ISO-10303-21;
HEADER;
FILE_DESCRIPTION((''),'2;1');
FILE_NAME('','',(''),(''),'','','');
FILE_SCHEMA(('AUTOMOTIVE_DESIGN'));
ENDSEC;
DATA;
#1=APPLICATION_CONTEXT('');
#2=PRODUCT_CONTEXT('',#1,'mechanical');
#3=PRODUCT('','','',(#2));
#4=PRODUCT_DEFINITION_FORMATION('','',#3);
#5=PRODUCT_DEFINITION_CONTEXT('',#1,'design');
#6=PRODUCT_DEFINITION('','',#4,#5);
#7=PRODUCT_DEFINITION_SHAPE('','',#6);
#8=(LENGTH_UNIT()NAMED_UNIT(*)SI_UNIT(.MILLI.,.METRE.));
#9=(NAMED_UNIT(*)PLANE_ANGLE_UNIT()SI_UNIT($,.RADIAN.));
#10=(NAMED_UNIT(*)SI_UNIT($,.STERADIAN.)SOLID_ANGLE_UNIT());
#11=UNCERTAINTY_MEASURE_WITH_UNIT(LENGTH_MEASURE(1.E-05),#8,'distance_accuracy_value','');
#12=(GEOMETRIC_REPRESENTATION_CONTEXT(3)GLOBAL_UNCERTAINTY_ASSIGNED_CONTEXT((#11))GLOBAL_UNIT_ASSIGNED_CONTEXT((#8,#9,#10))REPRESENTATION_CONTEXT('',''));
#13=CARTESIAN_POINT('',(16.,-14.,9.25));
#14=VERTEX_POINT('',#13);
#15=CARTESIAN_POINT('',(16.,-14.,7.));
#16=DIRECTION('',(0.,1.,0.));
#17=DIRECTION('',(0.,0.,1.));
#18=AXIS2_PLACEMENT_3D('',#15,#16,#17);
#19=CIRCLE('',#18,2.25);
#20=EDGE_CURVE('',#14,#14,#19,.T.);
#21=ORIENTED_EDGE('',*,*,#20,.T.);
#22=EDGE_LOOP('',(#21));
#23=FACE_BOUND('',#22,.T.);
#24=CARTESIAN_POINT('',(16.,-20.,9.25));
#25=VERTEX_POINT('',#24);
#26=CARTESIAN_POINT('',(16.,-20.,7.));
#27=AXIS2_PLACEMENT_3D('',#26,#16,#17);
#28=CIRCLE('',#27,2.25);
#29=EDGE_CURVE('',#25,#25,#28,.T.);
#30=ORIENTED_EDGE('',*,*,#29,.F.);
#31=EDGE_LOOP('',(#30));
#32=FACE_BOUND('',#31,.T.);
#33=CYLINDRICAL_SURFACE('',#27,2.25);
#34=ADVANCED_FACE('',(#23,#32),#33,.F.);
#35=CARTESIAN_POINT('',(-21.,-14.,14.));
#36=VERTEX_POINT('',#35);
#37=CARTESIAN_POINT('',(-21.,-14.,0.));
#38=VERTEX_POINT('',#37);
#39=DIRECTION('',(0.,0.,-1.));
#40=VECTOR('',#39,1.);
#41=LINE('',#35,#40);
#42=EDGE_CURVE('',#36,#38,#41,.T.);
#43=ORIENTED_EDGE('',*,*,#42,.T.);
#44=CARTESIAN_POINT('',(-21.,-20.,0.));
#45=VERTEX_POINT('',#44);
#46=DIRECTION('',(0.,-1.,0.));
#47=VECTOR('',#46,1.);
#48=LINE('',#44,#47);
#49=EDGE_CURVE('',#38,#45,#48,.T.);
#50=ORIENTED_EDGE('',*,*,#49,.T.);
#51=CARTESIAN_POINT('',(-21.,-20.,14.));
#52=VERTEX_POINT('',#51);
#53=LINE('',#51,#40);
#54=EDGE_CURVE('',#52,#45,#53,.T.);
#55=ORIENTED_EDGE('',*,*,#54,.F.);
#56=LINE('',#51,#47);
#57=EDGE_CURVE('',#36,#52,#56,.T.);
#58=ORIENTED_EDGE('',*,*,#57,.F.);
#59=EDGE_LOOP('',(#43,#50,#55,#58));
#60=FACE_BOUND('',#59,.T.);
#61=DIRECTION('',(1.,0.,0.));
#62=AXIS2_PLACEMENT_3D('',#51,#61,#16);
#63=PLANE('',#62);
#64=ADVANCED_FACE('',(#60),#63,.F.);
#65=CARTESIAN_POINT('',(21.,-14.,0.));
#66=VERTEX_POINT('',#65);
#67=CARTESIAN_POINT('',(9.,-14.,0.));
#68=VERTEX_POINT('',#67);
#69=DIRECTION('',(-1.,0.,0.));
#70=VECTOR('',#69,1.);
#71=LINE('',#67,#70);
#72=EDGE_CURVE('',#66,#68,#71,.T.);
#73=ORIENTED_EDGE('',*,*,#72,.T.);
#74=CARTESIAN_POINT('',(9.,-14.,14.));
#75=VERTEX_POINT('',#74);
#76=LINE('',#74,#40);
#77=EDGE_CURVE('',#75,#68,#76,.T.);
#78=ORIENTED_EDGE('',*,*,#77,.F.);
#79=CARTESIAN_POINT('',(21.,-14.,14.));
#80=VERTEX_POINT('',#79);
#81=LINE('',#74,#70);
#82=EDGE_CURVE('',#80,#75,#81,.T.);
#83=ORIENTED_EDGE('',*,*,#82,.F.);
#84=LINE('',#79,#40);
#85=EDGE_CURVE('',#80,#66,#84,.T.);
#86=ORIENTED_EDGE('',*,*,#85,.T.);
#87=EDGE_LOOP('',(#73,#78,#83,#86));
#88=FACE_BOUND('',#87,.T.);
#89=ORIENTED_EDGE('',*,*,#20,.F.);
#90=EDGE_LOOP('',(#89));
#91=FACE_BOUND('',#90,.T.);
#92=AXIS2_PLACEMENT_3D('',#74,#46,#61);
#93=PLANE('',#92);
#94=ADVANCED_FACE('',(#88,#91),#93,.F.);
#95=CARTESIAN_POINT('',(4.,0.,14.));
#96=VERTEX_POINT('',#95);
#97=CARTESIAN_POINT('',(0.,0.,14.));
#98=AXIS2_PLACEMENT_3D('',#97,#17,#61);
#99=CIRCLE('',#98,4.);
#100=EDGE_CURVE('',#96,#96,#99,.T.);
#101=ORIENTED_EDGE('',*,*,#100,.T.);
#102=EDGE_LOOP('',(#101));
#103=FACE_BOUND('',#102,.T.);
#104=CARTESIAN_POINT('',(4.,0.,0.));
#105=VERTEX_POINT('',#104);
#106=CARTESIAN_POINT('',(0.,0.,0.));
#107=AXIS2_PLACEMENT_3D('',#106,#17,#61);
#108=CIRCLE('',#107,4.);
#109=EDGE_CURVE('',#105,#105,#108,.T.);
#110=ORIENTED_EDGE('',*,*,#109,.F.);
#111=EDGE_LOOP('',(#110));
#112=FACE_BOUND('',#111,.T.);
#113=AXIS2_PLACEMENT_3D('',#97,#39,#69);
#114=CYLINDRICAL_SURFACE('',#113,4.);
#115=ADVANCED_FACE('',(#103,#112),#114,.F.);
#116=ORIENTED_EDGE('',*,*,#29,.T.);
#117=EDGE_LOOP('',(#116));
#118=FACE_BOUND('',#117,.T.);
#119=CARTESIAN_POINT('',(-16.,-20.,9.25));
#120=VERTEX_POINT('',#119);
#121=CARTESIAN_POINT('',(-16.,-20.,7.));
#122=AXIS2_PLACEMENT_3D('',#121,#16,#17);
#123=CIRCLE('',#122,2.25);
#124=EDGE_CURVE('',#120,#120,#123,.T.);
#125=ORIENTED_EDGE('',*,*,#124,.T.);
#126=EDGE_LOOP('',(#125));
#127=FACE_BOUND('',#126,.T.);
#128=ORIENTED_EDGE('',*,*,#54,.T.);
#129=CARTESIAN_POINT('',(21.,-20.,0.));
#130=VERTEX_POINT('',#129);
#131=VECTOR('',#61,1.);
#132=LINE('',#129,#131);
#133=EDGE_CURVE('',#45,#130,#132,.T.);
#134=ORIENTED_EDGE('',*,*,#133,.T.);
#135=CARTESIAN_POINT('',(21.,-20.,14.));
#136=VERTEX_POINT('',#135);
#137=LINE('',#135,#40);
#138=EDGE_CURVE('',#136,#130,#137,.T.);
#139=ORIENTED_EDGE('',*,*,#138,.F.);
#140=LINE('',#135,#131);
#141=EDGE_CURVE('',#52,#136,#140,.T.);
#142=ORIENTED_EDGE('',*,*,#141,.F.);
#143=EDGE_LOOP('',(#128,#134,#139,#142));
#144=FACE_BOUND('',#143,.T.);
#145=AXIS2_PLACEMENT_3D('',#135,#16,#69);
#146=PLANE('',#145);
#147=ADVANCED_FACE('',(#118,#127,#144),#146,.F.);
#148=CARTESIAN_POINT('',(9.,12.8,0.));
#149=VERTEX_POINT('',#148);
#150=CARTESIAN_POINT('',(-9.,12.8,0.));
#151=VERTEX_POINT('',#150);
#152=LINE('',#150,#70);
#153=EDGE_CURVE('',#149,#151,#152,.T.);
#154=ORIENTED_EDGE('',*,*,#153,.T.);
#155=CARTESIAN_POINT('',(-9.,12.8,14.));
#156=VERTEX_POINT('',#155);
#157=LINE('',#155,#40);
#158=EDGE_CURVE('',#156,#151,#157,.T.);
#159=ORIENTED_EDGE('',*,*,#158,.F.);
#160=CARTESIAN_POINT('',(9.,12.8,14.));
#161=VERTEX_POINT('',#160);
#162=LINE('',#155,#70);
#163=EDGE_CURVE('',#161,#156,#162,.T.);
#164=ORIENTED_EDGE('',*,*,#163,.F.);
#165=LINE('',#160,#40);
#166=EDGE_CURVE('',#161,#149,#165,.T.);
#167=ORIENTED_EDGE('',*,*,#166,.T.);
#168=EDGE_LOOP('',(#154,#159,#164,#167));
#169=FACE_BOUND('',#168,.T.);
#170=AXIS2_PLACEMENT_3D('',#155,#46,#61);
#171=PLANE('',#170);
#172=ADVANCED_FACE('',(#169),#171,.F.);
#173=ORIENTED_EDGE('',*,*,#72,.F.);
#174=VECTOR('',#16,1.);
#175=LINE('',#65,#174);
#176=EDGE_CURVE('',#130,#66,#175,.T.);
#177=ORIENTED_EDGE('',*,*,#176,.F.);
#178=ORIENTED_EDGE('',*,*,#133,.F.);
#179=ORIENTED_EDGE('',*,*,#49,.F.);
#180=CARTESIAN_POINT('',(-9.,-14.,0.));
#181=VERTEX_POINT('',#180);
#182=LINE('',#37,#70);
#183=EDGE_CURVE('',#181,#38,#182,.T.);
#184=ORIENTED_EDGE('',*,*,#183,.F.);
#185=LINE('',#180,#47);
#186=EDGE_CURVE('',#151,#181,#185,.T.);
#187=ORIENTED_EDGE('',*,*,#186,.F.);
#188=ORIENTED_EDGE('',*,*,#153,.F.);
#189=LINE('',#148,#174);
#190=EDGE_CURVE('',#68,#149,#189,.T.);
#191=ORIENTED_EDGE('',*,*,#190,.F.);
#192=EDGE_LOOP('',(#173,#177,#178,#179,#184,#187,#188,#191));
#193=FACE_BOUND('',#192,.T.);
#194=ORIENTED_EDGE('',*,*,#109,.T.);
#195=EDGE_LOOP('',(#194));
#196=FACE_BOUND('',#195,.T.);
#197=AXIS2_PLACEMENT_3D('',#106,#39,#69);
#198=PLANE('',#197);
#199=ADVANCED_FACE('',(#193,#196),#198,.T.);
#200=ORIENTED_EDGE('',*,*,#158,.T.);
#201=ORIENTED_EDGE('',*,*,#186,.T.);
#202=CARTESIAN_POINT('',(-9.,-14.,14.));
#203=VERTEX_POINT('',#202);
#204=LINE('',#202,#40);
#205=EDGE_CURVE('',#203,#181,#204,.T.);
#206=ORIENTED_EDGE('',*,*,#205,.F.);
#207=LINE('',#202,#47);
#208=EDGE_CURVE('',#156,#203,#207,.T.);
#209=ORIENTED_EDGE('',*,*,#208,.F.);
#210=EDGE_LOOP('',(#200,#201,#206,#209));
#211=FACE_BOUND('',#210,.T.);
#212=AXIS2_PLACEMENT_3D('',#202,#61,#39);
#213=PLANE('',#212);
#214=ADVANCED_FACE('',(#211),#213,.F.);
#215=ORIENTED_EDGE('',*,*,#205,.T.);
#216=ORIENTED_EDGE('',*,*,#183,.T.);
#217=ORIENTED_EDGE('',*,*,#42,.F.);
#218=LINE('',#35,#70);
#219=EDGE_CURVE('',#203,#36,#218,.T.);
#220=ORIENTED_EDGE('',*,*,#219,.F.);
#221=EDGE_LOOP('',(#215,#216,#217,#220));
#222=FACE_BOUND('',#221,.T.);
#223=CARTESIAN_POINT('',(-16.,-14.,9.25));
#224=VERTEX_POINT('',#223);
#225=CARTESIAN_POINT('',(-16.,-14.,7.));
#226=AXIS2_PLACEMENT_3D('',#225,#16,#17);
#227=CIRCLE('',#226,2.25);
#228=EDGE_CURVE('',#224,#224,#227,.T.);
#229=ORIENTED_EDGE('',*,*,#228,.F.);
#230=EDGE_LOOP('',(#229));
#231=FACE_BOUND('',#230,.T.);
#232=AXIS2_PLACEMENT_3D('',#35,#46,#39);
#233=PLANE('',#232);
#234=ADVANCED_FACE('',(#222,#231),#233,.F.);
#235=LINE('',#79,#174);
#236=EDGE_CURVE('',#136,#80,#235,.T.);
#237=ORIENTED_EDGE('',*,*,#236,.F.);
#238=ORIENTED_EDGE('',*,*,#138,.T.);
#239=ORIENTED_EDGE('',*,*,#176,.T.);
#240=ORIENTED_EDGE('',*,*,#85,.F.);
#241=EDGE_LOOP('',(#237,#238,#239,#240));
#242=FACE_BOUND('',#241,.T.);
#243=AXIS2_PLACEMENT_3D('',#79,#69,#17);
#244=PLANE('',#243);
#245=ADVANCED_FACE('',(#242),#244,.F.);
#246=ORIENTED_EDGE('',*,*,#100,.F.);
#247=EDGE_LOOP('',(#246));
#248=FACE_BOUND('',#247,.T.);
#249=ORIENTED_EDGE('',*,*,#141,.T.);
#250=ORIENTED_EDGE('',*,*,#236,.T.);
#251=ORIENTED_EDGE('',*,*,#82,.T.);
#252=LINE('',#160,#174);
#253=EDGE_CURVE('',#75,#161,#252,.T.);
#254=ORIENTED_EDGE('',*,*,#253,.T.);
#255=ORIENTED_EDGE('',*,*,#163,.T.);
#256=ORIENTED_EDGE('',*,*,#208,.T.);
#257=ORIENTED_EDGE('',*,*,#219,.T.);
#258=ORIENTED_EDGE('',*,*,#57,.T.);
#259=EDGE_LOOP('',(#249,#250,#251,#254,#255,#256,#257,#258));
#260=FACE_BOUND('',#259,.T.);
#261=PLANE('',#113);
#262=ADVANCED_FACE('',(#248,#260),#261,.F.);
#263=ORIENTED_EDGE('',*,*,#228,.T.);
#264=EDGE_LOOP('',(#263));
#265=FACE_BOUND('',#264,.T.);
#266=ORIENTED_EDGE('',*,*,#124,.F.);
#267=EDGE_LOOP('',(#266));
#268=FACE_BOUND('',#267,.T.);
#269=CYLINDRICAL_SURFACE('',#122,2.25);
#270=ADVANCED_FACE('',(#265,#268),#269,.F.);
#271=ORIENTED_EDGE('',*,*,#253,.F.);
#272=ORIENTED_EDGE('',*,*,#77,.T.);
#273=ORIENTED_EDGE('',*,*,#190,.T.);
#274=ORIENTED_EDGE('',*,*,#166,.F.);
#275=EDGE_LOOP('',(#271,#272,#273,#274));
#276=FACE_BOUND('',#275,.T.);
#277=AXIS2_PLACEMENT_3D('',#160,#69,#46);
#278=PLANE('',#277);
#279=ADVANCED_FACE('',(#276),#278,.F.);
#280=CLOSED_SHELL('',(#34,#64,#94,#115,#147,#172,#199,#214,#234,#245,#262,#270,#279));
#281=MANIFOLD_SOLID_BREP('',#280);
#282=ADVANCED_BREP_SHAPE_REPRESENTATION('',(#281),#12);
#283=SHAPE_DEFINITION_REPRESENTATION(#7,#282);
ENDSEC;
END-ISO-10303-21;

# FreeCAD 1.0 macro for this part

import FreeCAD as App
import Part
import Sketcher
Q = App.Units.Quantity

doc = App.newDocument("Part")
body = doc.addObject("PartDesign::Body", "Body")

sketch1 = doc.addObject("Sketcher::SketchObject", "Sketch")
body.addObject(sketch1)
sketch1.AttachmentSupport = (doc.XY_Plane, [""])
sketch1.MapMode = "FlatFace"
sketch1.addGeometry([
    Part.LineSegment(App.Vector(9, 12.8, 0), App.Vector(-9, 12.8, 0)),
    Part.LineSegment(App.Vector(-9, 12.8, 0), App.Vector(-9, -14, 0)),
    Part.LineSegment(App.Vector(-9, -14, 0), App.Vector(-21, -14, 0)),
    Part.LineSegment(App.Vector(-21, -14, 0), App.Vector(-21, -20, 0)),
    Part.LineSegment(App.Vector(-21, -20, 0), App.Vector(21, -20, 0)),
    Part.LineSegment(App.Vector(21, -20, 0), App.Vector(21, -14, 0)),
    Part.LineSegment(App.Vector(21, -14, 0), App.Vector(9, -14, 0)),
    Part.LineSegment(App.Vector(9, -14, 0), App.Vector(9, 12.8, 0)),
    Part.Circle(App.Vector(0, 0, 0), App.Vector(0, 0, 1), 4),
], False)
sketch1.addConstraint([
    Sketcher.Constraint("Coincident", 0, 2, 1, 1),
    Sketcher.Constraint("Coincident", 1, 2, 2, 1),
    Sketcher.Constraint("Coincident", 2, 2, 3, 1),
    Sketcher.Constraint("Coincident", 3, 2, 4, 1),
    Sketcher.Constraint("Coincident", 4, 2, 5, 1),
    Sketcher.Constraint("Coincident", 5, 2, 6, 1),
    Sketcher.Constraint("Coincident", 6, 2, 7, 1),
    Sketcher.Constraint("Coincident", 7, 2, 0, 1),
    Sketcher.Constraint("Horizontal", 0),
    Sketcher.Constraint("Vertical", 1),
    Sketcher.Constraint("Horizontal", 2),
    Sketcher.Constraint("Vertical", 3),
    Sketcher.Constraint("Horizontal", 4),
    Sketcher.Constraint("Vertical", 5),
    Sketcher.Constraint("Horizontal", 6),
    Sketcher.Constraint("Vertical", 7),
    Sketcher.Constraint("Coincident", 8, 3, -1, 1),
    Sketcher.Constraint("Symmetric", 2, 2, 5, 2, -2),
    Sketcher.Constraint("Equal", 2, 6),
    Sketcher.Constraint("Diameter", 8, Q("8 mm")),
    Sketcher.Constraint("DistanceX", 0, 2, 0, 1, Q("18 mm")),
    Sketcher.Constraint("DistanceX", 2, 2, 2, 1, Q("12 mm")),
    Sketcher.Constraint("DistanceY", 3, 2, 3, 1, Q("6 mm")),
    Sketcher.Constraint("DistanceY", 1, 2, 1, 1, Q("26.8 mm")),
    Sketcher.Constraint("DistanceY", 1, 2, -1, 1, Q("14 mm")),
])
pad1 = doc.addObject("PartDesign::Pad", "Pad")
body.addObject(pad1)
pad1.Profile = sketch1
pad1.Length = 14

sketch2 = doc.addObject("Sketcher::SketchObject", "Sketch001")
body.addObject(sketch2)
sketch2.AttachmentSupport = (doc.XZ_Plane, [""])
sketch2.MapMode = "FlatFace"
sketch2.AttachmentOffset = App.Placement(App.Vector(0, 0, 14), App.Rotation())
sketch2.addGeometry([
    Part.Circle(App.Vector(-16, 7, 0), App.Vector(0, 0, 1), 2.25),
    Part.Circle(App.Vector(16, 7, 0), App.Vector(0, 0, 1), 2.25),
], False)
sketch2.addConstraint([
    Sketcher.Constraint("Equal", 0, 1),
    Sketcher.Constraint("Symmetric", 0, 3, 1, 3, -2),
    Sketcher.Constraint("Diameter", 0, Q("4.5 mm")),
    Sketcher.Constraint("DistanceX", 0, 3, -1, 1, Q("16 mm")),
    Sketcher.Constraint("DistanceY", -1, 1, 0, 3, Q("7 mm")),
])
pocket1 = doc.addObject("PartDesign::Pocket", "Pocket")
body.addObject(pocket1)
pocket1.Profile = sketch2
pocket1.Type = "ThroughAll"
pocket1.Reversed = True

doc.recompute()
